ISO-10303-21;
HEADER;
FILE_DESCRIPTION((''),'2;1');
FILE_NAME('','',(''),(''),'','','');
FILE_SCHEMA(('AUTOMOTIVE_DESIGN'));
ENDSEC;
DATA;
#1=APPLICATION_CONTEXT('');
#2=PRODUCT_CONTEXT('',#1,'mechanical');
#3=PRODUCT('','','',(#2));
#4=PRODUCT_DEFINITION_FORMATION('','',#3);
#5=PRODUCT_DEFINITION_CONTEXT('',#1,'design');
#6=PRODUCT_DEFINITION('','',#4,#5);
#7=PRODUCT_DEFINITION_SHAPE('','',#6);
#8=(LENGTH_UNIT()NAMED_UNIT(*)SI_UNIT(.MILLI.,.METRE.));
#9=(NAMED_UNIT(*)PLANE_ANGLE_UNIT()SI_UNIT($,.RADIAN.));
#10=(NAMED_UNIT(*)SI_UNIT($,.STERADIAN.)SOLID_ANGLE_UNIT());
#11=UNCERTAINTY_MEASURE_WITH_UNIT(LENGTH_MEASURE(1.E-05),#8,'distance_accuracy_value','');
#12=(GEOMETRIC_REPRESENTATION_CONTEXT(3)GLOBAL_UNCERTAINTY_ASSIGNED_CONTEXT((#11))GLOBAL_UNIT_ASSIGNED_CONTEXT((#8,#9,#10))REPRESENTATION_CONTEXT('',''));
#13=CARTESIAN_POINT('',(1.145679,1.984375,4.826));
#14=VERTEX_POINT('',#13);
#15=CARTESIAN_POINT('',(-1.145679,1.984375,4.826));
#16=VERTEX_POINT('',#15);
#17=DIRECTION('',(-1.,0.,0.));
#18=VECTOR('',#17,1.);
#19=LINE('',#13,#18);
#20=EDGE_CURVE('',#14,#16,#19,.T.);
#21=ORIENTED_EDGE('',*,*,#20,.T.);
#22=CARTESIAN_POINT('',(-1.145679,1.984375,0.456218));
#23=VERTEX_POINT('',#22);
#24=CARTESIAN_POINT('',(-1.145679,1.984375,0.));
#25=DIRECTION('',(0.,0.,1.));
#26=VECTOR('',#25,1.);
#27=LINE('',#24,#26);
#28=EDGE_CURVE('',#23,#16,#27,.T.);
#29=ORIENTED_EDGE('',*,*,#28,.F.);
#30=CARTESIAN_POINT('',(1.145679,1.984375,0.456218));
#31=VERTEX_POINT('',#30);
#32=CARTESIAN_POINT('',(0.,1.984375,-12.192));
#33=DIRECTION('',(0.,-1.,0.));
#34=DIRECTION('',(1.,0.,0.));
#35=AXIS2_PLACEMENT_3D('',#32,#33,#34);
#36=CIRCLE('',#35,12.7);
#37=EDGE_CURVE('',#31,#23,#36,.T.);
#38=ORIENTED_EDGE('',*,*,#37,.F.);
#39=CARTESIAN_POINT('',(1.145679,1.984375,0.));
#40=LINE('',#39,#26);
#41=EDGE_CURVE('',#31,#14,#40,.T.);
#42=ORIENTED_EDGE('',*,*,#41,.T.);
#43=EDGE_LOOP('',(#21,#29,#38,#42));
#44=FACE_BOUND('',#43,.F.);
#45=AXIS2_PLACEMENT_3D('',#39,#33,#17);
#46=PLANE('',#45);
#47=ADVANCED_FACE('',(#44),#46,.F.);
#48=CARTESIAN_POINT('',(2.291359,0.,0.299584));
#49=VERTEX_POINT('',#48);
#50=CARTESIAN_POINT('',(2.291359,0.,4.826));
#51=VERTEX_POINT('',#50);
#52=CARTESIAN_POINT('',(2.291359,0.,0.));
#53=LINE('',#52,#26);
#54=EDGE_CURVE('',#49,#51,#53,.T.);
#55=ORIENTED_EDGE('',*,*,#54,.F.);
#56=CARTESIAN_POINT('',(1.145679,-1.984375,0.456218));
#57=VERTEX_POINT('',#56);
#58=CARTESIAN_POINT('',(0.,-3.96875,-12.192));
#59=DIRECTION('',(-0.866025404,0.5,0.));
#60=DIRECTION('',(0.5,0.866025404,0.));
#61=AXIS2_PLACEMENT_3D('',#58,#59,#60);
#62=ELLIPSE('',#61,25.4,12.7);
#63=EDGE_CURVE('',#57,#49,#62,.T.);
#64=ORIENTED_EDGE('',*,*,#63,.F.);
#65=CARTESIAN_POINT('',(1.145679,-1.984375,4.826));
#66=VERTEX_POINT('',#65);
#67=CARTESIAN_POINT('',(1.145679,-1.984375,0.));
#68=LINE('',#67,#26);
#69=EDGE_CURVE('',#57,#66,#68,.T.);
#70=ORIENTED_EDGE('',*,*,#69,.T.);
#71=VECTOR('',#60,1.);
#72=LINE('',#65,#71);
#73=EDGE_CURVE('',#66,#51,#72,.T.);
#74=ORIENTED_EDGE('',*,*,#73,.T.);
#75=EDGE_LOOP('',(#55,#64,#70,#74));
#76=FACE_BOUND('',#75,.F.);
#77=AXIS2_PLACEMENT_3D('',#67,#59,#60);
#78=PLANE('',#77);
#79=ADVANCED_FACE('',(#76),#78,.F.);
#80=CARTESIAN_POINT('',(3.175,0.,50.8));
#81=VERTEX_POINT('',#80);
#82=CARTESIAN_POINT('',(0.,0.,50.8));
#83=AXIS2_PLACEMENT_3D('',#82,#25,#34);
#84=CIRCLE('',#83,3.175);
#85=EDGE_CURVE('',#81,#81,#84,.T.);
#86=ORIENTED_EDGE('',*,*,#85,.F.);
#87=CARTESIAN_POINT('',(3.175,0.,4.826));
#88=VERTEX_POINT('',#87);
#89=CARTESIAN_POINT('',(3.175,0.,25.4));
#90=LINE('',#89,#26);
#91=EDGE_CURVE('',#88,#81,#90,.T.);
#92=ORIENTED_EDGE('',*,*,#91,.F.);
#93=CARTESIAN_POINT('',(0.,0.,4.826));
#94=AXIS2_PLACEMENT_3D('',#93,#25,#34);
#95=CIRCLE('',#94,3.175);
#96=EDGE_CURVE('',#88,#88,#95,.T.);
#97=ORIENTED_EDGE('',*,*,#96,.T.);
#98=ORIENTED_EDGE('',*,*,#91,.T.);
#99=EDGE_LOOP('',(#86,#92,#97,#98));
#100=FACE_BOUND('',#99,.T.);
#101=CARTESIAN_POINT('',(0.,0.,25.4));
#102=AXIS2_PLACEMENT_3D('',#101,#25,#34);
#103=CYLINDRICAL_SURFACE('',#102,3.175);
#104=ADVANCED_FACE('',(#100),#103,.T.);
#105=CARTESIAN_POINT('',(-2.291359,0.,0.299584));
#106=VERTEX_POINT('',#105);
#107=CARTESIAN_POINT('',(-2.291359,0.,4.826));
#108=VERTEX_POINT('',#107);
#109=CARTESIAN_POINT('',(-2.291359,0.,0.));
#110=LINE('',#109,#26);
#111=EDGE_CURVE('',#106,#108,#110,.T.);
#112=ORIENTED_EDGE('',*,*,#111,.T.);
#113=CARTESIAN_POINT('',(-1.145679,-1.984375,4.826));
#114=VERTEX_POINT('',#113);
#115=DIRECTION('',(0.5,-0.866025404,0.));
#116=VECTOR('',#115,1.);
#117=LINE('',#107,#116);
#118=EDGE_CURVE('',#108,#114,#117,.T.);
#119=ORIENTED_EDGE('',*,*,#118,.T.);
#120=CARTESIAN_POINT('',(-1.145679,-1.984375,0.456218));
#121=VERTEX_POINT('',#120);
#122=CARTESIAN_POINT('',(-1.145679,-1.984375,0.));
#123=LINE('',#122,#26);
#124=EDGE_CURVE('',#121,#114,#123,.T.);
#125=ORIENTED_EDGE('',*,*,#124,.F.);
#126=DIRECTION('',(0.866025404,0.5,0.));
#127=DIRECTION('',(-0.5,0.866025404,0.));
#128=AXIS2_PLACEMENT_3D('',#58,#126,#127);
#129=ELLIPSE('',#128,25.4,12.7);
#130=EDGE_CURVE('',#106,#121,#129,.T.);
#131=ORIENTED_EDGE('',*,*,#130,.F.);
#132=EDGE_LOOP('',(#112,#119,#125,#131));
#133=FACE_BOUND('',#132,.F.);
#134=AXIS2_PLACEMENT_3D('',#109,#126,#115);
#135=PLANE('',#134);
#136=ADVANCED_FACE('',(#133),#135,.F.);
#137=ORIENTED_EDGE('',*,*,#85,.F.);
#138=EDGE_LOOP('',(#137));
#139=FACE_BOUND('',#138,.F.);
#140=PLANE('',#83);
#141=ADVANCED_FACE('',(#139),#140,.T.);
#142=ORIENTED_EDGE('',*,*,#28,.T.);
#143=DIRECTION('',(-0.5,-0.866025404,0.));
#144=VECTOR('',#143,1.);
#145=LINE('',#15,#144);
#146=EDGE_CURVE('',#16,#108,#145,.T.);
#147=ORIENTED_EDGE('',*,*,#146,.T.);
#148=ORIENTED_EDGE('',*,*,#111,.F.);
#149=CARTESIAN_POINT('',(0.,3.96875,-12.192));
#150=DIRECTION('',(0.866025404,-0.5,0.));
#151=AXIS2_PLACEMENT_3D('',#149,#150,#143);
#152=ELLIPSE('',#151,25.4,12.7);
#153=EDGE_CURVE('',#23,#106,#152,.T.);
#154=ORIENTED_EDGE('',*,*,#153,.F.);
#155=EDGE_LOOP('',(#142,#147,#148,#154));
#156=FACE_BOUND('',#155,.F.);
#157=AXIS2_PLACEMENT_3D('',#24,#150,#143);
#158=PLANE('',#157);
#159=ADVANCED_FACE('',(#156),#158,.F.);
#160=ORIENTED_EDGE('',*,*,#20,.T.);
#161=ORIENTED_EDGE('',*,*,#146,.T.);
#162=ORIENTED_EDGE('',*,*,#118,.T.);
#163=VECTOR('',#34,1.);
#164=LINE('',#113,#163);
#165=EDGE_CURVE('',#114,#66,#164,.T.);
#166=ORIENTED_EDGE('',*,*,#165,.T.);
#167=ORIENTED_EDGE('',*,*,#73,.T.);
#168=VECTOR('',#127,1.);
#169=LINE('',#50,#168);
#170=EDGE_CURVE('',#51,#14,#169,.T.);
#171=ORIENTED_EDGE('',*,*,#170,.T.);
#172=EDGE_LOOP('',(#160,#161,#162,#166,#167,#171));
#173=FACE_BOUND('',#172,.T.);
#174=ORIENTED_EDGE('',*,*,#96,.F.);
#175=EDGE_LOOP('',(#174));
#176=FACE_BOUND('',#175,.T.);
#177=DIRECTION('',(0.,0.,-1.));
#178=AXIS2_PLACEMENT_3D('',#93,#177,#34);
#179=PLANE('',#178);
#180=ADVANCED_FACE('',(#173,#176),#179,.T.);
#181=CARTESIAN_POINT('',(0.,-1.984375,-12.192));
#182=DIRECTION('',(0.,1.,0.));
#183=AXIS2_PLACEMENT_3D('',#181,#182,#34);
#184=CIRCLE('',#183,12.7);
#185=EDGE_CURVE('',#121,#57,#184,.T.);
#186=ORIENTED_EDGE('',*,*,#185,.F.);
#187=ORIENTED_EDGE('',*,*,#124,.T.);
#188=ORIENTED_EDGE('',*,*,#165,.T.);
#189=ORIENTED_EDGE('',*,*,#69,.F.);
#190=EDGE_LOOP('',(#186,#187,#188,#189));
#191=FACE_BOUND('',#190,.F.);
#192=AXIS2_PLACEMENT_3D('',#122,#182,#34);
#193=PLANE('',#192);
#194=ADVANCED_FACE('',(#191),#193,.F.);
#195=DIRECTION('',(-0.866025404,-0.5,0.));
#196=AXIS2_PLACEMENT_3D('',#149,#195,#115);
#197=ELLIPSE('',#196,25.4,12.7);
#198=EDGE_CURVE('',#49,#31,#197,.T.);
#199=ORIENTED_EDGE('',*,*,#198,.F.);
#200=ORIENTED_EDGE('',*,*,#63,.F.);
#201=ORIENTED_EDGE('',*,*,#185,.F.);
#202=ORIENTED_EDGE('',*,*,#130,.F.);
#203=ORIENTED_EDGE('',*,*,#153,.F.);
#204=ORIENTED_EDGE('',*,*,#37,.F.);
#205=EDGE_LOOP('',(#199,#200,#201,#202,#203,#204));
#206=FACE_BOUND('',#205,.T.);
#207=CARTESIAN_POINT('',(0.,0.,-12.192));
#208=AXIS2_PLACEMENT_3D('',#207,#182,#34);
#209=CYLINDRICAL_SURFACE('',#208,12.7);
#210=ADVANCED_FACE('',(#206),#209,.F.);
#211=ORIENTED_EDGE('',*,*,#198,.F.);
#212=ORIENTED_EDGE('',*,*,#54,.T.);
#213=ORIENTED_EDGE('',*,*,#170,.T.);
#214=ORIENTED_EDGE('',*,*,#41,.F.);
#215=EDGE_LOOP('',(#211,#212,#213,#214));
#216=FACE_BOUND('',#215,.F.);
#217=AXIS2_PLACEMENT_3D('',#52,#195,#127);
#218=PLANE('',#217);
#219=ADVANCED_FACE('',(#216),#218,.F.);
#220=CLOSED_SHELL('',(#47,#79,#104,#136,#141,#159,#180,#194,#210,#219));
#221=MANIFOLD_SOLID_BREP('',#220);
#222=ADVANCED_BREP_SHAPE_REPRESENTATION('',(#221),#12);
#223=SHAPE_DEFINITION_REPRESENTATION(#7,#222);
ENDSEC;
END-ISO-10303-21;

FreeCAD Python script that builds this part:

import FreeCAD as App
import Part
import Sketcher
from FreeCAD import Vector
Q = App.Units.Quantity

doc = App.newDocument("Part")
params = doc.addObject("Spreadsheet::Sheet", "Params")
for row, (alias, value) in enumerate([
    ("sketch1_height", "2 in"),
    ("sketch1_width", "0.125 in"),
    ("revolution_angle", "360 deg"),
    ("sketch2_diameter", "0.375 in"),
    ("pocket1_length", "0.19 in"),
    ("sketch3_diameter", "1 in"),
], start=1):
    params.set(f"A{row}", alias)
    params.set(f"B{row}", "=" + value)
    params.setAlias(f"B{row}", alias)

body = doc.addObject("PartDesign::Body", "Body")

sketch1 = body.newObject("Sketcher::SketchObject", "Sketch")
sketch1.AttachmentSupport = (doc.getObject("XZ_Plane"), [""])
sketch1.MapMode = "FlatFace"
sketch1.addGeometry([
    Part.LineSegment(Vector(0, 50.8, 0), Vector(0, 0, 0)),
    Part.LineSegment(Vector(0, 0, 0), Vector(3.2, 0, 0)),
    Part.LineSegment(Vector(3.2, 0, 0), Vector(3.2, 50.8, 0)),
    Part.LineSegment(Vector(3.2, 50.8, 0), Vector(0, 50.8, 0)),
], False)
sketch1.addConstraint([
    Sketcher.Constraint("Coincident", 0, 2, 1, 1),
    Sketcher.Constraint("Coincident", 1, 2, 2, 1),
    Sketcher.Constraint("Coincident", 2, 2, 3, 1),
    Sketcher.Constraint("Coincident", 3, 2, 0, 1),
    Sketcher.Constraint("Vertical", 0),
    Sketcher.Constraint("Horizontal", 1),
    Sketcher.Constraint("Vertical", 2),
    Sketcher.Constraint("Horizontal", 3),
    Sketcher.Constraint("Coincident", 0, 2, -1, 1),
    Sketcher.Constraint("DistanceY", 0, 2, 0, 1, Q("2 in")),
    Sketcher.Constraint("DistanceX", 1, 1, 1, 2, Q("0.125 in")),
])
sketch1.setExpression("Constraints[9]", "Params.sketch1_height")
sketch1.setExpression("Constraints[10]", "Params.sketch1_width")
revolution = body.newObject("PartDesign::Revolution", "Revolution")
revolution.Profile = sketch1
revolution.ReferenceAxis = (sketch1, ["V_Axis"])
revolution.setExpression("Angle", "Params.revolution_angle")

sketch2 = body.newObject("Sketcher::SketchObject", "Sketch001")
sketch2.AttachmentSupport = (doc.getObject("XY_Plane"), [""])
sketch2.MapMode = "FlatFace"
sketch2.addGeometry([
    Part.Circle(Vector(0, 0, 0), Vector(0, 0, 1), 4.8),
    Part.LineSegment(Vector(-1.1, 2, 0), Vector(-2.3, 0, 0)),
    Part.LineSegment(Vector(-2.3, 0, 0), Vector(-1.1, -2, 0)),
    Part.LineSegment(Vector(-1.1, -2, 0), Vector(1.1, -2, 0)),
    Part.LineSegment(Vector(1.1, -2, 0), Vector(2.3, 0, 0)),
    Part.LineSegment(Vector(2.3, 0, 0), Vector(1.1, 2, 0)),
    Part.LineSegment(Vector(1.1, 2, 0), Vector(-1.1, 2, 0)),
], False)
sketch2.addConstraint([
    Sketcher.Constraint("Coincident", 1, 2, 2, 1),
    Sketcher.Constraint("Coincident", 2, 2, 3, 1),
    Sketcher.Constraint("Coincident", 3, 2, 4, 1),
    Sketcher.Constraint("Coincident", 4, 2, 5, 1),
    Sketcher.Constraint("Coincident", 5, 2, 6, 1),
    Sketcher.Constraint("Coincident", 6, 2, 1, 1),
    Sketcher.Constraint("Horizontal", 3),
    Sketcher.Constraint("Horizontal", 6),
    Sketcher.Constraint("Coincident", 0, 3, -1, 1),
    Sketcher.Constraint("Symmetric", 1, 2, 4, 2, -1, 1),
    Sketcher.Constraint("Symmetric", 2, 2, 5, 2, -1, 1),
    Sketcher.Constraint("PointOnObject", 1, 2, -1),
    Sketcher.Constraint("Parallel", 1, 4),
    Sketcher.Constraint("Vertical", 3, 2, 5, 2),
    Sketcher.Constraint("Diameter", 0, Q("0.375 in")),
    Sketcher.Constraint("Angle", 1, Q("-120 deg")),
    Sketcher.Constraint("DistanceY", 2, 2, -1, 1, Q("0.078125 in")),
    Sketcher.Constraint("DistanceX", 3, 1, 3, 2, Q("2.291359 mm")),
])
sketch2.setExpression("Constraints[14]", "Params.sketch2_diameter")
pocket1 = body.newObject("PartDesign::Pocket", "Pocket")
pocket1.Profile = sketch2
pocket1.setExpression("Length", "Params.pocket1_length")
pocket1.Reversed = True

sketch3 = body.newObject("Sketcher::SketchObject", "Sketch002")
sketch3.AttachmentSupport = (doc.getObject("XZ_Plane"), [""])
sketch3.MapMode = "FlatFace"
sketch3.addGeometry(Part.Circle(Vector(0, -12, 0), Vector(0, 0, 1), 13), False)
sketch3.addConstraint([
    Sketcher.Constraint("PointOnObject", 0, 3, -2),
    Sketcher.Constraint("Diameter", 0, Q("1 in")),
    Sketcher.Constraint("DistanceY", 0, 3, -1, 1, Q("0.48 in")),
])
sketch3.setExpression("Constraints[1]", "Params.sketch3_diameter")
pocket2 = body.newObject("PartDesign::Pocket", "Pocket001")
pocket2.Profile = sketch3
pocket2.Type = "ThroughAll"
pocket2.Midplane = True

doc.recompute()
